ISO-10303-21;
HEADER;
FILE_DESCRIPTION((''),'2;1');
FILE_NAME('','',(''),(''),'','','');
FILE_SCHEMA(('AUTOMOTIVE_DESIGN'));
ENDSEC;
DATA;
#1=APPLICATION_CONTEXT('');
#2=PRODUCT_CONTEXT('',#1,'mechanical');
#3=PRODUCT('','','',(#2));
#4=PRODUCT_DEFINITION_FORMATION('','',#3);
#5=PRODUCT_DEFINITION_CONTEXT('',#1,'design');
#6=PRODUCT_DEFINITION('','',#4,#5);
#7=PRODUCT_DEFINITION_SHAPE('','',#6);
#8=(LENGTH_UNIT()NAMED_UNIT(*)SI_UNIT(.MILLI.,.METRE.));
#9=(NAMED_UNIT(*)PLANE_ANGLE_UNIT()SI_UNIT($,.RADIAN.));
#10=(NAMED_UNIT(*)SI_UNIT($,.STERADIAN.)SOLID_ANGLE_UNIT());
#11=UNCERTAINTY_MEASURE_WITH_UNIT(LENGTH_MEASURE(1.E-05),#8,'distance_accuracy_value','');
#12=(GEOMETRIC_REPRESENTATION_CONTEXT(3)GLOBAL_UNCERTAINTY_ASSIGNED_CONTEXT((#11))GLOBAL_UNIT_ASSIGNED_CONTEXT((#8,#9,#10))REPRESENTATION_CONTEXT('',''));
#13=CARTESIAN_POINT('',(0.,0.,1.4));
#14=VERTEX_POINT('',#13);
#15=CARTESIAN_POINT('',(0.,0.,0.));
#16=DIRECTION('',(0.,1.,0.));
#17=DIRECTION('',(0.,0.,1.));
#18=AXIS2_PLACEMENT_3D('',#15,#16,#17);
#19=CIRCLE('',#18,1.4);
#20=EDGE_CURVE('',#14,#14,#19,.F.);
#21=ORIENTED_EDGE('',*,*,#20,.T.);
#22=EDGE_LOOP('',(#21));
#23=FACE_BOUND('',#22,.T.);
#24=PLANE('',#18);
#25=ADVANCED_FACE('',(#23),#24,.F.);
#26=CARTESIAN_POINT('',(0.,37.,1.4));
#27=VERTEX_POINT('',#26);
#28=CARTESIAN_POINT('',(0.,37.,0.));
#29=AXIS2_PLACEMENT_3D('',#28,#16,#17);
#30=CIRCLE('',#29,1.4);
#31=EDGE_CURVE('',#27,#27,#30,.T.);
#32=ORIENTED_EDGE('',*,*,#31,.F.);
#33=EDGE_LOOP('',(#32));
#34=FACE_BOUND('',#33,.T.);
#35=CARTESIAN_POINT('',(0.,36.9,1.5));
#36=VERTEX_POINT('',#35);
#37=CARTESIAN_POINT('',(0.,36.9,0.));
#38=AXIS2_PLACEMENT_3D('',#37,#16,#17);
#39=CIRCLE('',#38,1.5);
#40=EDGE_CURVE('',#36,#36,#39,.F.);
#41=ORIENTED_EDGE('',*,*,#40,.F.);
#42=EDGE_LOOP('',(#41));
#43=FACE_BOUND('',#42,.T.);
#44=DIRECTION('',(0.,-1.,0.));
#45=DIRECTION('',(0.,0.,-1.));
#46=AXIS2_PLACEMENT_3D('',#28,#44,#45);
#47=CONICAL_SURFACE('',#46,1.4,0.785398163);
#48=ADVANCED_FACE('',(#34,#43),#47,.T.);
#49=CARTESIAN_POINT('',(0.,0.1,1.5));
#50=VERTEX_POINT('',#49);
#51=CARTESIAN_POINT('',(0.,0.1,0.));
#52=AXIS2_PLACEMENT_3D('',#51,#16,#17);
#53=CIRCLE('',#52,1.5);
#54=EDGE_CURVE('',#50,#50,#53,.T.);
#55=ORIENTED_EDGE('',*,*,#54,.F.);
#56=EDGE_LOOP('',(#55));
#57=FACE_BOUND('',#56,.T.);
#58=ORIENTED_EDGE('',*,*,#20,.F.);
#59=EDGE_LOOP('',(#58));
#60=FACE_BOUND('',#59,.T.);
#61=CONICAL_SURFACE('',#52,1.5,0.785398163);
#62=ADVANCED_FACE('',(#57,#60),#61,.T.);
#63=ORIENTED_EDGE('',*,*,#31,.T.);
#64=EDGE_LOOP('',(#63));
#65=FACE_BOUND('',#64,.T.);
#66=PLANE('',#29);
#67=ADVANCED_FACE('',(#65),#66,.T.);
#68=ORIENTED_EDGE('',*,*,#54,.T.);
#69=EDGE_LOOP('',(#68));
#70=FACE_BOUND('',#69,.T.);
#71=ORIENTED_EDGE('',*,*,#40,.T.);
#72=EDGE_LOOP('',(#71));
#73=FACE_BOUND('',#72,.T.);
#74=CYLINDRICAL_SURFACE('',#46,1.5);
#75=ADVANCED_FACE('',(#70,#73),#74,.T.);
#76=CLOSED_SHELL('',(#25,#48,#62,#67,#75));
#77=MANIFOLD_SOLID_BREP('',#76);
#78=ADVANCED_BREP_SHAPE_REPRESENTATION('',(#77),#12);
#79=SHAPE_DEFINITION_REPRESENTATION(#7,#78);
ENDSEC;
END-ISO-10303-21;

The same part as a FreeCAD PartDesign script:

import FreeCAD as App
import Part
import Sketcher
Q = App.Units.Quantity


def edges_at(feature, points):
    """Names of the edges that pass closest to the given points."""
    edges = feature.Shape.Edges
    near = lambda p: min(range(len(edges)), key=lambda i: edges[i].distToShape(Part.Vertex(*p))[0])
    return sorted({f"Edge{near(p) + 1}" for p in points})

doc = App.newDocument("Part")
body = doc.addObject("PartDesign::Body", "Body")

sketch1 = body.newObject("Sketcher::SketchObject", "Sketch")
sketch1.AttachmentSupport = (doc.getObject("XZ_Plane"), [""])
sketch1.MapMode = "FlatFace"
sketch1.addGeometry(Part.Circle(App.Vector(0, 0, 0), App.Vector(0, 0, 1), 1.5), False)
sketch1.addConstraint(Sketcher.Constraint("Coincident", 0, 3, -1, 1))
sketch1.addConstraint(Sketcher.Constraint("Diameter", 0, Q("3 mm")))
pad1 = body.newObject("PartDesign::Pad", "Pad")
pad1.Profile = sketch1
pad1.Length = 37
pad1.Reversed = True
doc.recompute()

chamfer = body.newObject("PartDesign::Chamfer", "Chamfer")
chamfer.Base = (pad1, edges_at(pad1, [(0, 0, -1.5), (0, 37, -1.5)]))
chamfer.Size = 0.1

doc.recompute()
